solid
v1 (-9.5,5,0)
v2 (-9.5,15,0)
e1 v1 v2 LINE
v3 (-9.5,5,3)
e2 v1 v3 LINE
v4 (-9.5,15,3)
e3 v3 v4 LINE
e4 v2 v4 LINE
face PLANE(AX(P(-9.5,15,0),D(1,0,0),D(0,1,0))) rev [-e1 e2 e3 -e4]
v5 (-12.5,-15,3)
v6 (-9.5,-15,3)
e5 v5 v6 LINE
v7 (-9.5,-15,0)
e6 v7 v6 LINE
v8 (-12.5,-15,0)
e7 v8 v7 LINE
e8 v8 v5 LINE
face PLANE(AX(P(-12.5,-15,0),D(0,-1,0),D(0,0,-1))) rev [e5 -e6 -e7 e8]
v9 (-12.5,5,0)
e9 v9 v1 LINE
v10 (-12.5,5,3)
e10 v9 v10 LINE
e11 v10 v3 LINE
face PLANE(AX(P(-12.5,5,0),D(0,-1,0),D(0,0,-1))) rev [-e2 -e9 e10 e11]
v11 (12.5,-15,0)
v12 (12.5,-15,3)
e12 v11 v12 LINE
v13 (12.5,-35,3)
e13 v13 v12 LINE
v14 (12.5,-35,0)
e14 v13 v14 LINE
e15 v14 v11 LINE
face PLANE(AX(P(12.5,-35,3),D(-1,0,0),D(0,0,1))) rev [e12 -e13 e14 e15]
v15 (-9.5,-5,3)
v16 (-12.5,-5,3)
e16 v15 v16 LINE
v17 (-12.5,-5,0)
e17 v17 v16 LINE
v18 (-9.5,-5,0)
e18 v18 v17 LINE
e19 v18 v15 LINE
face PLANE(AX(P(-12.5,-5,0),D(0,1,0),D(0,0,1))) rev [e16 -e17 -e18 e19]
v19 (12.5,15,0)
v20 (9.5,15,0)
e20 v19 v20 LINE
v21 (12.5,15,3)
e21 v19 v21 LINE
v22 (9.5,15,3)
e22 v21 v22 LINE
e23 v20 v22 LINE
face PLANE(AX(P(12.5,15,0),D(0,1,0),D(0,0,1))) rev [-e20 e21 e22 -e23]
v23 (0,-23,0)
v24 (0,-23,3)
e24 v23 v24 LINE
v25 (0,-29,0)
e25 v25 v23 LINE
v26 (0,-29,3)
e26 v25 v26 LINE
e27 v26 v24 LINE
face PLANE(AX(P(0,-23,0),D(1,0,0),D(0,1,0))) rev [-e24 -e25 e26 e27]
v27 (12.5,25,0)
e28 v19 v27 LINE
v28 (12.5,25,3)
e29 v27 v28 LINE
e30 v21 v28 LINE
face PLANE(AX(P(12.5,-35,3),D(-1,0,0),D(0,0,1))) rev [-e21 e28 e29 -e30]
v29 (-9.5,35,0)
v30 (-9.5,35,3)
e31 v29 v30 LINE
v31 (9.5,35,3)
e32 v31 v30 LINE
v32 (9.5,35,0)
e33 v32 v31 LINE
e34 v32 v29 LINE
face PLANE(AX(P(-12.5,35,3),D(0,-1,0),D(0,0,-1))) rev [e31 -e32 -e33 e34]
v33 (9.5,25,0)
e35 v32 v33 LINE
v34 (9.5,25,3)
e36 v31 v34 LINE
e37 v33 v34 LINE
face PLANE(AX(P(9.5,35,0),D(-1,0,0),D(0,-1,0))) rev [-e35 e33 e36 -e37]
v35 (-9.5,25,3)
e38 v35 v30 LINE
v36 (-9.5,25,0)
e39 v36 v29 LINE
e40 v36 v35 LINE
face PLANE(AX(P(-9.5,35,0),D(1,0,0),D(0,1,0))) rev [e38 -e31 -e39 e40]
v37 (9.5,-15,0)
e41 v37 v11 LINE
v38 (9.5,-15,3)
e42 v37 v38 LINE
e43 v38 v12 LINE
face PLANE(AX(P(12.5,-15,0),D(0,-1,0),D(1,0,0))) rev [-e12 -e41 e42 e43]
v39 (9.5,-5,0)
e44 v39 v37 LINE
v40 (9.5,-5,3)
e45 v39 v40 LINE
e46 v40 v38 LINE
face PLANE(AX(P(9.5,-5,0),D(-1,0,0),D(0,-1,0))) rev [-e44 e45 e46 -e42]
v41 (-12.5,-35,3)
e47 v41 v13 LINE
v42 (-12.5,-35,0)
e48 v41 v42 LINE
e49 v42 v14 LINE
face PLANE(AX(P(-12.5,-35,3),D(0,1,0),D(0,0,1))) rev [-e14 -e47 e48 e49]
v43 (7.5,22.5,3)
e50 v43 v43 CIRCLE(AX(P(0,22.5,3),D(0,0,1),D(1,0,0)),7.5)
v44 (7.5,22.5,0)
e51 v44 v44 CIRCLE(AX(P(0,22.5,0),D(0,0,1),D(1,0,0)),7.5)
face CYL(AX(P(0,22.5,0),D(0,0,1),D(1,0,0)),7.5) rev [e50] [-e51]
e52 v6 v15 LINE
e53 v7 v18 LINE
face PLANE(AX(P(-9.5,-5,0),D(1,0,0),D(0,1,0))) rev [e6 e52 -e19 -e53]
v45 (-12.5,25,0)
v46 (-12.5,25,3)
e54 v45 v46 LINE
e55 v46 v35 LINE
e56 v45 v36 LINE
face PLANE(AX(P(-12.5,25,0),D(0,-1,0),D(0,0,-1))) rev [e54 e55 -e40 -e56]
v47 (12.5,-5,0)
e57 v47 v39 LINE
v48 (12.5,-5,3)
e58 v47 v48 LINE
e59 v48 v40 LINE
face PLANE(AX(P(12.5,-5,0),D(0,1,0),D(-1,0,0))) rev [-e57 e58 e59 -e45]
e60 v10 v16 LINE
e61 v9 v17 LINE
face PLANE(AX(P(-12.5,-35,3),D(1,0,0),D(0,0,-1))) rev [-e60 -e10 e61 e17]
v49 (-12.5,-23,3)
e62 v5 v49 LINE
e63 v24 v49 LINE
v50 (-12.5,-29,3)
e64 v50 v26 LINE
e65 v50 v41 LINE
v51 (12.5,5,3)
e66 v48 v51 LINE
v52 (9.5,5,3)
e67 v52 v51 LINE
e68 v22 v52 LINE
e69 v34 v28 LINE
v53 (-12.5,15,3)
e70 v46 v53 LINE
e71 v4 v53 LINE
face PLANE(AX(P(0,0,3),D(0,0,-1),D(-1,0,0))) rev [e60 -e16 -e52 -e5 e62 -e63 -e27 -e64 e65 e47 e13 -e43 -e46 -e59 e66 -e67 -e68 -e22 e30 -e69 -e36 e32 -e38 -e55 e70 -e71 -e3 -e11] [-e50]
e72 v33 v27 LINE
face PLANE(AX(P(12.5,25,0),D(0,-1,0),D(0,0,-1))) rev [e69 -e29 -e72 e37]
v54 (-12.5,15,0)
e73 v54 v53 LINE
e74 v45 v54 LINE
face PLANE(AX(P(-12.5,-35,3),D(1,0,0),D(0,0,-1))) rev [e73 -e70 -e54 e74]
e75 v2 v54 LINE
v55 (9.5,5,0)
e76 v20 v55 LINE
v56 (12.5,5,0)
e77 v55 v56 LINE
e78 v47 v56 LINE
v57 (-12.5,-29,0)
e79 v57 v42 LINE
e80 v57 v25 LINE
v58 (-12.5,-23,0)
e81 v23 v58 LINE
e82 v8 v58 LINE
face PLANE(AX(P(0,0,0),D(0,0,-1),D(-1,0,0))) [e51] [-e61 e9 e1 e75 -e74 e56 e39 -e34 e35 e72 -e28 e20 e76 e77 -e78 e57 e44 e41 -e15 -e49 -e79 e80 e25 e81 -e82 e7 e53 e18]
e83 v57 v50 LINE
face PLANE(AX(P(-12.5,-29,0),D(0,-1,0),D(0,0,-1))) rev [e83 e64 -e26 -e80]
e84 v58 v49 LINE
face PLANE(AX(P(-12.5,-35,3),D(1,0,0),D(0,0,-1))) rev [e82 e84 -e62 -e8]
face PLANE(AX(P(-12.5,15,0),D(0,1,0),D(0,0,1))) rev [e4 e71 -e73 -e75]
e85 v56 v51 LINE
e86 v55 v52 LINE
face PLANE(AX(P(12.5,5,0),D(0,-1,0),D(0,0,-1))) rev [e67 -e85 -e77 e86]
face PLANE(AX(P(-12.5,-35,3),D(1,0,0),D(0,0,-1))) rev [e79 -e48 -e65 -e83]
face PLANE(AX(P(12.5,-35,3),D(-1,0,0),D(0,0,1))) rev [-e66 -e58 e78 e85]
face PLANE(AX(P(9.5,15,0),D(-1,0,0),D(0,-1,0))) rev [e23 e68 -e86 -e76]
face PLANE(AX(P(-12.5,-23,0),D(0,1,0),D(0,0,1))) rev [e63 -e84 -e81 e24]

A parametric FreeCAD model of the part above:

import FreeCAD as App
import Part
import Sketcher
from FreeCAD import Vector
Q = App.Units.Quantity


def add_polygon(sketch, points):
    """Adds a closed chain of lines whose ends are joined by coincident constraints."""
    first, n = sketch.GeometryCount, len(points)
    for a, b in zip(points, points[1:] + points[:1]):
        sketch.addGeometry(Part.LineSegment(App.Vector(*a, 0), App.Vector(*b, 0)), False)
    for i in range(n):
        sketch.addConstraint(Sketcher.Constraint("Coincident", first + i, 2, first + (i + 1) % n, 1))

doc = App.newDocument("Part")
body = doc.addObject("PartDesign::Body", "Body")

sketch1 = body.newObject("Sketcher::SketchObject", "Sketch")
sketch1.AttachmentSupport = (doc.getObject("XY_Plane"), [""])
sketch1.MapMode = "FlatFace"
add_polygon(sketch1, [(-12, 35), (-12, -35), (12, -35), (12, 35)])
sketch1.addConstraint([
    Sketcher.Constraint("Vertical", 0),
    Sketcher.Constraint("Horizontal", 1),
    Sketcher.Constraint("Vertical", 2),
    Sketcher.Constraint("Horizontal", 3),
    Sketcher.Constraint("Symmetric", 0, 2, 2, 2, -1, 1),
    Sketcher.Constraint("DistanceX", 1, 1, 1, 2, Q("25 mm")),
    Sketcher.Constraint("DistanceY", 0, 2, 0, 1, Q("70 mm")),
])
pad1 = body.newObject("PartDesign::Pad", "Pad")
pad1.Profile = sketch1
pad1.Length = 3

sketch2 = body.newObject("Sketcher::SketchObject", "Sketch001")
sketch2.AttachmentSupport = (doc.getObject("XY_Plane"), [""])
sketch2.MapMode = "FlatFace"
sketch2.AttachmentOffset = App.Placement(Vector(0, 0, 3), App.Rotation())
sketch2.addGeometry(Part.Circle(Vector(0, 22.5, 0), Vector(0, 0, 1), 7.5), False)
add_polygon(sketch2, [(-12.5, -5), (-12.5, -15), (-9.5, -15), (-9.5, -5)])
add_polygon(sketch2, [(9.5, 35), (9.5, 25), (12.5, 25), (12.5, 35)])
add_polygon(sketch2, [(9.5, 15), (9.5, 5), (12.5, 5), (12.5, 15)])
add_polygon(sketch2, [(9.5, -5), (9.5, -15), (12.5, -15), (12.5, -5)])
add_polygon(sketch2, [(-12.5, 15), (-12.5, 5), (-9.5, 5), (-9.5, 15)])
add_polygon(sketch2, [(-12.5, 35), (-12.5, 25), (-9.5, 25), (-9.5, 35)])
add_polygon(sketch2, [(-12.5, -23), (-12.5, -29), (0, -29), (0, -23)])
sketch2.addConstraint([
    Sketcher.Constraint("Vertical", 1),
    Sketcher.Constraint("Horizontal", 2),
    Sketcher.Constraint("Vertical", 3),
    Sketcher.Constraint("Horizontal", 4),
    Sketcher.Constraint("Vertical", 5),
    Sketcher.Constraint("Horizontal", 6),
    Sketcher.Constraint("Vertical", 7),
    Sketcher.Constraint("Horizontal", 8),
    Sketcher.Constraint("Vertical", 9),
    Sketcher.Constraint("Horizontal", 10),
    Sketcher.Constraint("Vertical", 11),
    Sketcher.Constraint("Horizontal", 12),
    Sketcher.Constraint("Vertical", 13),
    Sketcher.Constraint("Horizontal", 14),
    Sketcher.Constraint("Vertical", 15),
    Sketcher.Constraint("Horizontal", 16),
    Sketcher.Constraint("Vertical", 17),
    Sketcher.Constraint("Horizontal", 18),
    Sketcher.Constraint("Vertical", 19),
    Sketcher.Constraint("Horizontal", 20),
    Sketcher.Constraint("Vertical", 21),
    Sketcher.Constraint("Horizontal", 22),
    Sketcher.Constraint("Vertical", 23),
    Sketcher.Constraint("Horizontal", 24),
    Sketcher.Constraint("Vertical", 25),
    Sketcher.Constraint("Horizontal", 26),
    Sketcher.Constraint("Vertical", 27),
    Sketcher.Constraint("Horizontal", 28),
    Sketcher.Constraint("Symmetric", 3, 2, 9, 2, -1, 1),
    Sketcher.Constraint("Symmetric", 1, 2, 11, 2, -1, 1),
    Sketcher.Constraint("Symmetric", 15, 2, 17, 2, -1, 1),
    Sketcher.Constraint("Symmetric", 13, 2, 19, 2, -1, 1),
    Sketcher.Constraint("Symmetric", 2, 2, 13, 2, -2),
    Sketcher.Constraint("Symmetric", 4, 2, 15, 2, -2),
    Sketcher.Constraint("Symmetric", 6, 2, 21, 2, -2),
    Sketcher.Constraint("Symmetric", 8, 2, 23, 2, -2),
    Sketcher.Constraint("PointOnObject", 0, 3, -2),
    Sketcher.Constraint("PointOnObject", 26, 2, -2),
    Sketcher.Constraint("Vertical", 8, 2, 9, 2),
    Sketcher.Constraint("Vertical", 7, 2, 10, 2),
    Sketcher.Constraint("Vertical", 24, 2, 25, 2),
    Sketcher.Constraint("Equal", 3, 5),
    Sketcher.Constraint("Diameter", 0, Q("15 mm")),
    Sketcher.Constraint("DistanceX", 2, 1, 2, 2, Q("3 mm")),
    Sketcher.Constraint("DistanceY", 1, 2, 1, 1, Q("10 mm")),
    Sketcher.Constraint("DistanceY", 25, 2, 25, 1, Q("6 mm")),
    Sketcher.Constraint("DistanceX", 26, 1, 26, 2, Q("12.5 mm")),
    Sketcher.Constraint("DistanceY", 1, 2, -1, 1, Q("15 mm")),
    Sketcher.Constraint("DistanceY", -1, 1, 5, 2, Q("25 mm")),
    Sketcher.Constraint("DistanceY", 25, 2, -1, 1, Q("29 mm")),
    Sketcher.Constraint("DistanceY", -1, 1, 0, 3, Q("22.5 mm")),
])
pocket1 = body.newObject("PartDesign::Pocket", "Pocket")
pocket1.Profile = sketch2
pocket1.Length = 3

doc.recompute()
